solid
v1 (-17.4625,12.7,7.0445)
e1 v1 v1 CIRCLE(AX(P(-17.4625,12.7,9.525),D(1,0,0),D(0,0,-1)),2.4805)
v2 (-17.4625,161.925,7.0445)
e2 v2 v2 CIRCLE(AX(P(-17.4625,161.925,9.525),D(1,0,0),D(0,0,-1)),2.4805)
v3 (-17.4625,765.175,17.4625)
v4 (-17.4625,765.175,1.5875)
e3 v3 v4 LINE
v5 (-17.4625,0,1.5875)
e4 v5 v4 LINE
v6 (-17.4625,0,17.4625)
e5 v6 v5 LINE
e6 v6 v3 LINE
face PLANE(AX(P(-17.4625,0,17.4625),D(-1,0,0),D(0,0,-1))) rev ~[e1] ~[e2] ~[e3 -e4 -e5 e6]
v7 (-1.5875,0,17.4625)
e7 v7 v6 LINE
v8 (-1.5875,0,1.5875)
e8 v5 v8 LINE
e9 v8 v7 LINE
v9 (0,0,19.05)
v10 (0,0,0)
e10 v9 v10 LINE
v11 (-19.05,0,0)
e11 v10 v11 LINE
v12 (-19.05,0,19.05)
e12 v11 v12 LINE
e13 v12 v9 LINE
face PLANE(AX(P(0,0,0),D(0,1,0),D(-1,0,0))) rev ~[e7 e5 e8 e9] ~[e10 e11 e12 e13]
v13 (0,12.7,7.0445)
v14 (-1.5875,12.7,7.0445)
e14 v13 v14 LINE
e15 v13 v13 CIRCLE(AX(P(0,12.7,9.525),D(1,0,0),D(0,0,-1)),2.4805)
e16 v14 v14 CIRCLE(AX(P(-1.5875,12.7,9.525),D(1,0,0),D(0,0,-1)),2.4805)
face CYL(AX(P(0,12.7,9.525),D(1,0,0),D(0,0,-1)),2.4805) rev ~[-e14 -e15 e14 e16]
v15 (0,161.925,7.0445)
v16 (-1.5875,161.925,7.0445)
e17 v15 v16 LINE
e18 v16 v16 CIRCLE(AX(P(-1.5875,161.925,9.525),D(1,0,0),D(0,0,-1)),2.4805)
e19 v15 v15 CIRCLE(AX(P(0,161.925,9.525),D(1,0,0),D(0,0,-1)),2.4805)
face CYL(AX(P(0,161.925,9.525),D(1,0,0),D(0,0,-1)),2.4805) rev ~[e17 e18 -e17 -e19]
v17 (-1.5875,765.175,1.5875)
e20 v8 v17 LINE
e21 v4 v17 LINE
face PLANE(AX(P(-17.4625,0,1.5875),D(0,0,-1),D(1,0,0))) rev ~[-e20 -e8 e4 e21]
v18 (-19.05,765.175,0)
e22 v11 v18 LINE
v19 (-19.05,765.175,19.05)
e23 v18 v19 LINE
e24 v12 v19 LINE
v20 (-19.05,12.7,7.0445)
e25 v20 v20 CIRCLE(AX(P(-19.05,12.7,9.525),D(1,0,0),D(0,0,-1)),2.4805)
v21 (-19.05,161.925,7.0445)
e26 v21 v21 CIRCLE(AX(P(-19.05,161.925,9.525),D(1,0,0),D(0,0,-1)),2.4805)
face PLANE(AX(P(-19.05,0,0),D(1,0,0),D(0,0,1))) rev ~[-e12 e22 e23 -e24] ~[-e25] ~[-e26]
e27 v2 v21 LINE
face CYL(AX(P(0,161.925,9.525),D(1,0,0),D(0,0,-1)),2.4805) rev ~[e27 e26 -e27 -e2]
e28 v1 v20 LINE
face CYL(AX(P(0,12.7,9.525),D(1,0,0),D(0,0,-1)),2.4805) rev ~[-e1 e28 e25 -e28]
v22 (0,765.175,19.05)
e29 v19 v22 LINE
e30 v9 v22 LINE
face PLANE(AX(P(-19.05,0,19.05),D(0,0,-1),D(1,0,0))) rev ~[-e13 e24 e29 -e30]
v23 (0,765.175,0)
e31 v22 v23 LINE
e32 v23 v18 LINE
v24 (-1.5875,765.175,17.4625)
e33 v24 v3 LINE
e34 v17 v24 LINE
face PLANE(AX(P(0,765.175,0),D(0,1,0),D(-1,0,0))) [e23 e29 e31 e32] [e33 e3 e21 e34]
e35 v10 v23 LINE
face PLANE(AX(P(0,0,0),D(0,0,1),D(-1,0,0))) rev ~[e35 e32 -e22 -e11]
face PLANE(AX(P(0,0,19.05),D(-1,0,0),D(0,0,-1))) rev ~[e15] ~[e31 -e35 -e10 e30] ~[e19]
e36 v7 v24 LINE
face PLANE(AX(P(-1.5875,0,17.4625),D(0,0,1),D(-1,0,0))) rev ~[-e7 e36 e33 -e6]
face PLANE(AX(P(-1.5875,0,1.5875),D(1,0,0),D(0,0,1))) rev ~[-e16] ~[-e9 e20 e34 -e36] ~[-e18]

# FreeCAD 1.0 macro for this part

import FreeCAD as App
import Part
import Sketcher
from FreeCAD import Vector
Q = App.Units.Quantity


def add_polygon(sketch, points):
    """Adds a closed chain of lines whose ends are joined by coincident constraints."""
    first, n = sketch.GeometryCount, len(points)
    for a, b in zip(points, points[1:] + points[:1]):
        sketch.addGeometry(Part.LineSegment(App.Vector(*a, 0), App.Vector(*b, 0)), False)
    for i in range(n):
        sketch.addConstraint(Sketcher.Constraint("Coincident", first + i, 2, first + (i + 1) % n, 1))

doc = App.newDocument("Part")
params = doc.addObject("Spreadsheet::Sheet", "Params")
for row, (alias, value) in enumerate([
    ("sketch1_width", "0.75 in"),
    ("pad1_length", "30.125 in"),
], start=1):
    params.set(f"A{row}", alias)
    params.set(f"B{row}", "=" + value)
    params.setAlias(f"B{row}", alias)

body = doc.addObject("PartDesign::Body", "Body")

# Sketch on XZ plane
sketch1 = body.newObject("Sketcher::SketchObject", "Sketch")
sketch1.AttachmentSupport = (doc.getObject("XZ_Plane"), [""])
sketch1.MapMode = "FlatFace"
add_polygon(sketch1, [(0, 19), (0, 0), (-19, 0), (-19, 19)])  # lines 0-3
add_polygon(sketch1, [(-2, 2), (-2, 17), (-17, 17), (-17, 2)])  # lines 4-7
sketch1.addConstraint([
    Sketcher.Constraint("Vertical", 0),
    Sketcher.Constraint("Horizontal", 1),
    Sketcher.Constraint("Vertical", 2),
    Sketcher.Constraint("Horizontal", 3),
    Sketcher.Constraint("Vertical", 4),
    Sketcher.Constraint("Horizontal", 5),
    Sketcher.Constraint("Vertical", 6),
    Sketcher.Constraint("Horizontal", 7),
    Sketcher.Constraint("Coincident", 0, 2, -1, 1),
    Sketcher.Constraint("Equal", 3, 0),
    Sketcher.Constraint("Equal", 7, 4),
    Sketcher.Constraint("DistanceX", 1, 2, 1, 1, Q("0.75 in")),
    Sketcher.Constraint("DistanceX", 4, 2, -1, 1, Q("0.0625 in")),
    Sketcher.Constraint("DistanceY", -1, 1, 6, 2, Q("0.0625 in")),
    Sketcher.Constraint("DistanceY", 4, 2, 3, 2, Q("0.0625 in")),
])
sketch1.setExpression("Constraints[19]", "Params.sketch1_width")
pad1 = body.newObject("PartDesign::Pad", "Pad")
pad1.Profile = sketch1
pad1.setExpression("Length", "Params.pad1_length")
pad1.Reversed = True

# Sketch on YZ plane
sketch2 = body.newObject("Sketcher::SketchObject", "Sketch001")
sketch2.AttachmentSupport = (doc.getObject("YZ_Plane"), [""])
sketch2.MapMode = "FlatFace"
sketch2.addGeometry([
    Part.Circle(Vector(12.7, 9.5, 0), Vector(0, 0, 1), 2.5),
    Part.Circle(Vector(161.9, 9.5, 0), Vector(0, 0, 1), 2.5),
], False)
sketch2.addConstraint([
    Sketcher.Constraint("Equal", 0, 1),
    Sketcher.Constraint("Horizontal", 0, 3, 1, 3),
    Sketcher.Constraint("DistanceX", -1, 1, 0, 3, Q("0.5 in")),
    Sketcher.Constraint("Diameter", 0, Q("4.961 mm")),
    Sketcher.Constraint("DistanceY", -1, 1, 0, 3, Q("0.375 in")),
    Sketcher.Constraint("DistanceX", 0, 3, 1, 3, Q("5.875 in")),
])
pocket1 = body.newObject("PartDesign::Pocket", "Pocket")
pocket1.Profile = sketch2
pocket1.Type = "ThroughAll"

doc.recompute()
